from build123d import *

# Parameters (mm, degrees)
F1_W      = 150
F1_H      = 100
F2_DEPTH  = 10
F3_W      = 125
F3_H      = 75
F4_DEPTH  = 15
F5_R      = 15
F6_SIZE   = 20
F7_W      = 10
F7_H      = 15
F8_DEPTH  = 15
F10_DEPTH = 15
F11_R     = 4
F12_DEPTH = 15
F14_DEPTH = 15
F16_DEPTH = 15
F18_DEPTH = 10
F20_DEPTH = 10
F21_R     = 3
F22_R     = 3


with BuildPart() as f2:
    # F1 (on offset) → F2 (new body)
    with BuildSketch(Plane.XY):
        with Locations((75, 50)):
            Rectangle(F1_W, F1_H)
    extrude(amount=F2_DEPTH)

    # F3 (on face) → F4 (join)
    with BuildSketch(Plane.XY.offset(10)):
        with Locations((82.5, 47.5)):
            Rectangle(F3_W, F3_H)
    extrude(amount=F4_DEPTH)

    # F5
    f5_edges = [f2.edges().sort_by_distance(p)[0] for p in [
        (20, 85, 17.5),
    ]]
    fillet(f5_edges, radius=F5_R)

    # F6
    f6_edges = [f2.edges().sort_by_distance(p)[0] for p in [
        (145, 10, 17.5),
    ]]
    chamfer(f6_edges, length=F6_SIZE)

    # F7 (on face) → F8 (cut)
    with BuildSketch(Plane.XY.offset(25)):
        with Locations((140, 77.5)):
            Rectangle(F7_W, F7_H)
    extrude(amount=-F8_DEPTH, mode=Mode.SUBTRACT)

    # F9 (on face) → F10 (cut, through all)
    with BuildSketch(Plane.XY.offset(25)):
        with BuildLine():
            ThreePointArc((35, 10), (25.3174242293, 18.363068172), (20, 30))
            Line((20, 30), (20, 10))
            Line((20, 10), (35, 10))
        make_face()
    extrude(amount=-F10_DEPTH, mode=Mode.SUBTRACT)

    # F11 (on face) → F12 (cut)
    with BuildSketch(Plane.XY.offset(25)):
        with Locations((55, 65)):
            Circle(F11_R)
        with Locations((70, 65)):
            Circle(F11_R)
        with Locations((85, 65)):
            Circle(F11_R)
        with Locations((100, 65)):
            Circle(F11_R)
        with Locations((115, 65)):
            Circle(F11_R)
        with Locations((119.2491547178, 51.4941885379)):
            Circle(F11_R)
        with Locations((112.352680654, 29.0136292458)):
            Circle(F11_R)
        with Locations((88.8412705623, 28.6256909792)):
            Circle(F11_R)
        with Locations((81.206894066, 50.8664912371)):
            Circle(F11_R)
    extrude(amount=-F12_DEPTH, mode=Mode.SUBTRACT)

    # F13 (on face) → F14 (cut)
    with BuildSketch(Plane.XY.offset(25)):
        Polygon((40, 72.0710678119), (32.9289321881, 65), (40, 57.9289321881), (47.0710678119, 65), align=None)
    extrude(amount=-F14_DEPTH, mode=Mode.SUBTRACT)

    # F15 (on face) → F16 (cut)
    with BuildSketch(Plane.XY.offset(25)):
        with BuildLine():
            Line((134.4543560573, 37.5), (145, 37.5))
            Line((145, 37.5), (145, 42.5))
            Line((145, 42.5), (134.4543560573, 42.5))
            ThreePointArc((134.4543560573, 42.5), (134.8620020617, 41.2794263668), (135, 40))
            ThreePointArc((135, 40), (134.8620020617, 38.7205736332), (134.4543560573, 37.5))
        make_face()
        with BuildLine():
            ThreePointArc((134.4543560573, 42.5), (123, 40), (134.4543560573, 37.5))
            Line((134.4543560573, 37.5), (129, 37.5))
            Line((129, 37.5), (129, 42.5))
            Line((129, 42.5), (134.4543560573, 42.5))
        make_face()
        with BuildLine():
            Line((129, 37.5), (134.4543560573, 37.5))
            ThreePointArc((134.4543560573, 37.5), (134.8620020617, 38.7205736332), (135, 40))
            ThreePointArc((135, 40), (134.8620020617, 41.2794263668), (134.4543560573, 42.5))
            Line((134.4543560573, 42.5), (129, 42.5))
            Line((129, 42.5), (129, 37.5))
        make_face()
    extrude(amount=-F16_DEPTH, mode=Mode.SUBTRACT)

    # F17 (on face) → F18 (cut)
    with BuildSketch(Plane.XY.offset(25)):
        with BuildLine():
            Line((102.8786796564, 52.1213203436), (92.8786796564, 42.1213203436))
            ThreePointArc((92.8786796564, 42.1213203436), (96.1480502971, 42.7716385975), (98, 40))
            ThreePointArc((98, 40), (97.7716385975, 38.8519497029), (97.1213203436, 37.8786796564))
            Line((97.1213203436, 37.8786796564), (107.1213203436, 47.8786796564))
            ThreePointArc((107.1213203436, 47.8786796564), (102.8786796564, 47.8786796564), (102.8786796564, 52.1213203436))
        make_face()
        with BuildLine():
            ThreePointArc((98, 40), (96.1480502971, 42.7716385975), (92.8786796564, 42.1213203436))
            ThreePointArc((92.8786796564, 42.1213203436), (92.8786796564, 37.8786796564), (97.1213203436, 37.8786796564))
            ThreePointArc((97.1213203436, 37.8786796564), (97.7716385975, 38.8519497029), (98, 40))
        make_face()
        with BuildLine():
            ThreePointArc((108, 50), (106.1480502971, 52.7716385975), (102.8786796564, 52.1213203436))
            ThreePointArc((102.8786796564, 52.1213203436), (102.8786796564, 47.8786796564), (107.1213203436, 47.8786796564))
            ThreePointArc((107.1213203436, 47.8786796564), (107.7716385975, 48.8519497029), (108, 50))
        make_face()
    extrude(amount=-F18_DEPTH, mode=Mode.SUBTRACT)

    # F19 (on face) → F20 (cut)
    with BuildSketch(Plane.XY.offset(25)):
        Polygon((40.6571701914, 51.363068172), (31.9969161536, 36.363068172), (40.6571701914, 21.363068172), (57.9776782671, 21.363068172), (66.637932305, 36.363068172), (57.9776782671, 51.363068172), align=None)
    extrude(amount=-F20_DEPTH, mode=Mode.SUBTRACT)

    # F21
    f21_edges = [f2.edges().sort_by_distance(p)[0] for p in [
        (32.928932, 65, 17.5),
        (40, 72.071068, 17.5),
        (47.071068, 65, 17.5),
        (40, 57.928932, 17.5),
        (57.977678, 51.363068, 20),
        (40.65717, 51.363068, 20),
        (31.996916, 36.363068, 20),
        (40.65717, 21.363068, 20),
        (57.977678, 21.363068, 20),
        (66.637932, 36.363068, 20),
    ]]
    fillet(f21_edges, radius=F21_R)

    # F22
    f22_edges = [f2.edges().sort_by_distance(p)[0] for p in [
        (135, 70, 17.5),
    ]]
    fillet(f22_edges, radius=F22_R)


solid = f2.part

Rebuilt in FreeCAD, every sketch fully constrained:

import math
import FreeCAD as App
import Part
import Sketcher
from FreeCAD import Vector
Q = App.Units.Quantity


def edges_at(feature, points):
    """Names of the edges that pass closest to the given points."""
    edges = feature.Shape.Edges
    near = lambda p: min(range(len(edges)), key=lambda i: edges[i].distToShape(Part.Vertex(*p))[0])
    return sorted({f"Edge{near(p) + 1}" for p in points})

doc = App.newDocument("Part")
params = doc.addObject("Spreadsheet::Sheet", "Params")
for row, (alias, value) in enumerate([
    ("sketch1_width", "150 mm"),
    ("sketch1_height", "100 mm"),
    ("pad1_length", "10 mm"),
    ("sketch2_width", "125 mm"),
    ("sketch2_height", "75 mm"),
    ("pad2_length", "15 mm"),
    ("fillet_radius", "15 mm"),
    ("chamfer_size", "20 mm"),
    ("sketch3_width", "10 mm"),
    ("sketch3_height", "15 mm"),
    ("pocket1_length", "15 mm"),
    ("sketch4_radius", "30 mm"),
    ("sketch4_width", "15 mm"),
    ("sketch4_height", "20 mm"),
    ("pocket2_length", "15 mm"),
    ("sketch5_diameter", "8 mm"),
    ("pocket3_length", "15 mm"),
    ("sketch6_length", "10 mm"),
    ("pocket4_length", "15 mm"),
    ("sketch7_radius", "6 mm"),
    ("sketch7_height", "5 mm"),
    ("pocket5_length", "15 mm"),
    ("sketch8_radius", "3 mm"),
    ("pocket6_length", "10 mm"),
    ("pocket7_length", "10 mm"),
    ("fillet2_radius", "3 mm"),
    ("fillet3_radius", "3 mm"),
], start=1):
    params.set(f"A{row}", alias)
    params.set(f"B{row}", "=" + value)
    params.setAlias(f"B{row}", alias)

body = doc.addObject("PartDesign::Body", "Body")

# Sketch on XY plane
sketch1 = body.newObject("Sketcher::SketchObject", "Sketch")
sketch1.AttachmentSupport = (doc.getObject("XY_Plane"), [""])
sketch1.MapMode = "FlatFace"
sketch1.addGeometry(Part.LineSegment(Vector(0, 100, 0), Vector(0, 0, 0)), False)
sketch1.addGeometry(Part.LineSegment(Vector(0, 0, 0), Vector(150, 0, 0)), False)
sketch1.addGeometry(Part.LineSegment(Vector(150, 0, 0), Vector(150, 100, 0)), False)
sketch1.addGeometry(Part.LineSegment(Vector(150, 100, 0), Vector(0, 100, 0)), False)
sketch1.addConstraint(Sketcher.Constraint("Coincident", 0, 2, 1, 1))
sketch1.addConstraint(Sketcher.Constraint("Coincident", 1, 2, 2, 1))
sketch1.addConstraint(Sketcher.Constraint("Coincident", 2, 2, 3, 1))
sketch1.addConstraint(Sketcher.Constraint("Coincident", 3, 2, 0, 1))
sketch1.addConstraint(Sketcher.Constraint("Vertical", 0))
sketch1.addConstraint(Sketcher.Constraint("Horizontal", 1))
sketch1.addConstraint(Sketcher.Constraint("Vertical", 2))
sketch1.addConstraint(Sketcher.Constraint("Horizontal", 3))
sketch1.addConstraint(Sketcher.Constraint("Coincident", 0, 2, -1, 1))
sketch1.addConstraint(Sketcher.Constraint("DistanceX", 1, 1, 1, 2, 150.0))
sketch1.addConstraint(Sketcher.Constraint("DistanceY", 0, 2, 0, 1, 100.0))
sketch1.setExpression("Constraints[9]", "Params.sketch1_width")
sketch1.setExpression("Constraints[10]", "Params.sketch1_height")
pad1 = body.newObject("PartDesign::Pad", "Pad")
pad1.Profile = sketch1
pad1.setExpression("Length", "Params.pad1_length")

# Sketch on XY plane
sketch2 = body.newObject("Sketcher::SketchObject", "Sketch001")
sketch2.AttachmentSupport = (doc.getObject("XY_Plane"), [""])
sketch2.MapMode = "FlatFace"
sketch2.AttachmentOffset = App.Placement(Vector(0, 0, 10), App.Rotation())
sketch2.addGeometry(Part.LineSegment(Vector(20, 85, 0), Vector(20, 10, 0)), False)
sketch2.addGeometry(Part.LineSegment(Vector(20, 10, 0), Vector(145, 10, 0)), False)
sketch2.addGeometry(Part.LineSegment(Vector(145, 10, 0), Vector(145, 85, 0)), False)
sketch2.addGeometry(Part.LineSegment(Vector(145, 85, 0), Vector(20, 85, 0)), False)
sketch2.addConstraint(Sketcher.Constraint("Coincident", 0, 2, 1, 1))
sketch2.addConstraint(Sketcher.Constraint("Coincident", 1, 2, 2, 1))
sketch2.addConstraint(Sketcher.Constraint("Coincident", 2, 2, 3, 1))
sketch2.addConstraint(Sketcher.Constraint("Coincident", 3, 2, 0, 1))
sketch2.addConstraint(Sketcher.Constraint("Vertical", 0))
sketch2.addConstraint(Sketcher.Constraint("Horizontal", 1))
sketch2.addConstraint(Sketcher.Constraint("Vertical", 2))
sketch2.addConstraint(Sketcher.Constraint("Horizontal", 3))
sketch2.addConstraint(Sketcher.Constraint("DistanceX", 1, 1, 1, 2, 125.0))
sketch2.addConstraint(Sketcher.Constraint("DistanceY", 0, 2, 0, 1, 75.0))
sketch2.addConstraint(Sketcher.Constraint("DistanceX", -1, 1, 0, 2, 20.0))
sketch2.addConstraint(Sketcher.Constraint("DistanceY", -1, 1, 0, 2, 10.0))
sketch2.setExpression("Constraints[8]", "Params.sketch2_width")
sketch2.setExpression("Constraints[9]", "Params.sketch2_height")
pad2 = body.newObject("PartDesign::Pad", "Pad001")
pad2.Profile = sketch2
pad2.setExpression("Length", "Params.pad2_length")
doc.recompute()

fillet = body.newObject("PartDesign::Fillet", "Fillet")
fillet.Base = (pad2, edges_at(pad2, [(20, 85, 17.5)]))
fillet.setExpression("Radius", "Params.fillet_radius")
doc.recompute()

chamfer = body.newObject("PartDesign::Chamfer", "Chamfer")
chamfer.Base = (fillet, edges_at(fillet, [(145, 10, 17.5)]))
chamfer.setExpression("Size", "Params.chamfer_size")

# Sketch on XY plane
sketch3 = body.newObject("Sketcher::SketchObject", "Sketch002")
sketch3.AttachmentSupport = (doc.getObject("XY_Plane"), [""])
sketch3.MapMode = "FlatFace"
sketch3.AttachmentOffset = App.Placement(Vector(0, 0, 25), App.Rotation())
sketch3.addGeometry(Part.LineSegment(Vector(135, 85, 0), Vector(135, 70, 0)), False)
sketch3.addGeometry(Part.LineSegment(Vector(135, 70, 0), Vector(145, 70, 0)), False)
sketch3.addGeometry(Part.LineSegment(Vector(145, 70, 0), Vector(145, 85, 0)), False)
sketch3.addGeometry(Part.LineSegment(Vector(145, 85, 0), Vector(135, 85, 0)), False)
sketch3.addConstraint(Sketcher.Constraint("Coincident", 0, 2, 1, 1))
sketch3.addConstraint(Sketcher.Constraint("Coincident", 1, 2, 2, 1))
sketch3.addConstraint(Sketcher.Constraint("Coincident", 2, 2, 3, 1))
sketch3.addConstraint(Sketcher.Constraint("Coincident", 3, 2, 0, 1))
sketch3.addConstraint(Sketcher.Constraint("Vertical", 0))
sketch3.addConstraint(Sketcher.Constraint("Horizontal", 1))
sketch3.addConstraint(Sketcher.Constraint("Vertical", 2))
sketch3.addConstraint(Sketcher.Constraint("Horizontal", 3))
sketch3.addConstraint(Sketcher.Constraint("DistanceX", 1, 1, 1, 2, 10.0))
sketch3.addConstraint(Sketcher.Constraint("DistanceY", 0, 2, 0, 1, 15.0))
sketch3.addConstraint(Sketcher.Constraint("DistanceX", -1, 1, 0, 2, 135.0))
sketch3.addConstraint(Sketcher.Constraint("DistanceY", -1, 1, 0, 2, 70.0))
sketch3.setExpression("Constraints[8]", "Params.sketch3_width")
sketch3.setExpression("Constraints[9]", "Params.sketch3_height")
pocket1 = body.newObject("PartDesign::Pocket", "Pocket")
pocket1.Profile = sketch3
pocket1.setExpression("Length", "Params.pocket1_length")

# Sketch on XY plane
sketch4 = body.newObject("Sketcher::SketchObject", "Sketch003")
sketch4.AttachmentSupport = (doc.getObject("XY_Plane"), [""])
sketch4.MapMode = "FlatFace"
sketch4.AttachmentOffset = App.Placement(Vector(0, 0, 25), App.Rotation())
sketch4.addGeometry(Part.ArcOfCircle(Part.Circle(Vector(49.317424, 36.363068, 0), Vector(0, 0, 1), 30), math.radians(-167.754421), math.radians(-118.505784)), False)
sketch4.addGeometry(Part.LineSegment(Vector(20, 30, 0), Vector(20, 10, 0)), False)
sketch4.addGeometry(Part.LineSegment(Vector(20, 10, 0), Vector(35, 10, 0)), False)
sketch4.addConstraint(Sketcher.Constraint("Coincident", 0, 1, 1, 1))
sketch4.addConstraint(Sketcher.Constraint("Coincident", 1, 2, 2, 1))
sketch4.addConstraint(Sketcher.Constraint("Coincident", 2, 2, 0, 2))
sketch4.addConstraint(Sketcher.Constraint("Vertical", 1))
sketch4.addConstraint(Sketcher.Constraint("Horizontal", 2))
sketch4.addConstraint(Sketcher.Constraint("Radius", 0, 30.0))
sketch4.addConstraint(Sketcher.Constraint("DistanceX", 2, 1, 2, 2, 15.0))
sketch4.addConstraint(Sketcher.Constraint("DistanceY", 1, 2, 1, 1, 20.0))
sketch4.addConstraint(Sketcher.Constraint("DistanceX", -1, 1, 0, 1, 20.0))
sketch4.addConstraint(Sketcher.Constraint("DistanceY", -1, 1, 0, 1, 30.0))
sketch4.setExpression("Constraints[5]", "Params.sketch4_radius")
sketch4.setExpression("Constraints[6]", "Params.sketch4_width")
sketch4.setExpression("Constraints[7]", "Params.sketch4_height")
pocket2 = body.newObject("PartDesign::Pocket", "Pocket001")
pocket2.Profile = sketch4
pocket2.setExpression("Length", "Params.pocket2_length")

# Sketch on XY plane
sketch5 = body.newObject("Sketcher::SketchObject", "Sketch004")
sketch5.AttachmentSupport = (doc.getObject("XY_Plane"), [""])
sketch5.MapMode = "FlatFace"
sketch5.AttachmentOffset = App.Placement(Vector(0, 0, 25), App.Rotation())
sketch5.addGeometry(Part.Circle(Vector(55, 65, 0), Vector(0, 0, 1), 4), False)
sketch5.addGeometry(Part.Circle(Vector(70, 65, 0), Vector(0, 0, 1), 4), False)
sketch5.addGeometry(Part.Circle(Vector(85, 65, 0), Vector(0, 0, 1), 4), False)
sketch5.addGeometry(Part.Circle(Vector(100, 65, 0), Vector(0, 0, 1), 4), False)
sketch5.addGeometry(Part.Circle(Vector(115, 65, 0), Vector(0, 0, 1), 4), False)
sketch5.addGeometry(Part.Circle(Vector(119.249155, 51.494189, 0), Vector(0, 0, 1), 4), False)
sketch5.addGeometry(Part.Circle(Vector(112.352681, 29.013629, 0), Vector(0, 0, 1), 4), False)
sketch5.addGeometry(Part.Circle(Vector(88.841271, 28.625691, 0), Vector(0, 0, 1), 4), False)
sketch5.addGeometry(Part.Circle(Vector(81.206894, 50.866491, 0), Vector(0, 0, 1), 4), False)
sketch5.addConstraint(Sketcher.Constraint("Equal", 0, 1))
sketch5.addConstraint(Sketcher.Constraint("Equal", 1, 2))
sketch5.addConstraint(Sketcher.Constraint("Equal", 2, 3))
sketch5.addConstraint(Sketcher.Constraint("Equal", 3, 4))
sketch5.addConstraint(Sketcher.Constraint("Equal", 4, 5))
sketch5.addConstraint(Sketcher.Constraint("Equal", 5, 6))
sketch5.addConstraint(Sketcher.Constraint("Equal", 6, 7))
sketch5.addConstraint(Sketcher.Constraint("Equal", 7, 8))
sketch5.addConstraint(Sketcher.Constraint("Horizontal", 0, 3, 1, 3))
sketch5.addConstraint(Sketcher.Constraint("Horizontal", 1, 3, 2, 3))
sketch5.addConstraint(Sketcher.Constraint("Horizontal", 2, 3, 3, 3))
sketch5.addConstraint(Sketcher.Constraint("Horizontal", 3, 3, 4, 3))
sketch5.addConstraint(Sketcher.Constraint("Diameter", 0, 8.0))
sketch5.addConstraint(Sketcher.Constraint("DistanceX", -1, 1, 0, 3, 55.0))
sketch5.addConstraint(Sketcher.Constraint("DistanceY", -1, 1, 0, 3, 65.0))
sketch5.addConstraint(Sketcher.Constraint("DistanceX", -1, 1, 1, 3, 70.0))
sketch5.addConstraint(Sketcher.Constraint("DistanceX", -1, 1, 2, 3, 85.0))
sketch5.addConstraint(Sketcher.Constraint("DistanceX", -1, 1, 3, 3, 100.0))
sketch5.addConstraint(Sketcher.Constraint("DistanceX", -1, 1, 4, 3, 115.0))
sketch5.addConstraint(Sketcher.Constraint("DistanceY", 7, 3, 8, 3, 22.2408))
sketch5.addConstraint(Sketcher.Constraint("DistanceY", -1, 1, 5, 3, 51.494189))
sketch5.addConstraint(Sketcher.Constraint("DistanceX", -1, 1, 6, 3, 112.352681))
sketch5.addConstraint(Sketcher.Constraint("DistanceY", -1, 1, 6, 3, 29.013629))
sketch5.addConstraint(Sketcher.Constraint("DistanceX", -1, 1, 7, 3, 88.841271))
sketch5.addConstraint(Sketcher.Constraint("DistanceY", -1, 1, 7, 3, 28.625691))
sketch5.addConstraint(Sketcher.Constraint("DistanceX", -1, 1, 5, 3, 119.249155))
sketch5.addConstraint(Sketcher.Constraint("DistanceX", -1, 1, 8, 3, 81.206894))
sketch5.setExpression("Constraints[12]", "Params.sketch5_diameter")
pocket3 = body.newObject("PartDesign::Pocket", "Pocket002")
pocket3.Profile = sketch5
pocket3.setExpression("Length", "Params.pocket3_length")

# Sketch on XY plane
sketch6 = body.newObject("Sketcher::SketchObject", "Sketch005")
sketch6.AttachmentSupport = (doc.getObject("XY_Plane"), [""])
sketch6.MapMode = "FlatFace"
sketch6.AttachmentOffset = App.Placement(Vector(0, 0, 25), App.Rotation())
sketch6.addGeometry(Part.LineSegment(Vector(40, 72.071068, 0), Vector(32.928932, 65, 0)), False)
sketch6.addGeometry(Part.LineSegment(Vector(32.928932, 65, 0), Vector(40, 57.928932, 0)), False)
sketch6.addGeometry(Part.LineSegment(Vector(40, 57.928932, 0), Vector(47.071068, 65, 0)), False)
sketch6.addGeometry(Part.LineSegment(Vector(47.071068, 65, 0), Vector(40, 72.071068, 0)), False)
sketch6.addConstraint(Sketcher.Constraint("Coincident", 0, 2, 1, 1))
sketch6.addConstraint(Sketcher.Constraint("Coincident", 1, 2, 2, 1))
sketch6.addConstraint(Sketcher.Constraint("Coincident", 2, 2, 3, 1))
sketch6.addConstraint(Sketcher.Constraint("Coincident", 3, 2, 0, 1))
sketch6.addConstraint(Sketcher.Constraint("Perpendicular", 0, 1))
sketch6.addConstraint(Sketcher.Constraint("Perpendicular", 1, 2))
sketch6.addConstraint(Sketcher.Constraint("Perpendicular", 2, 3))
sketch6.addConstraint(Sketcher.Constraint("Horizontal", 0, 2, 2, 2))
sketch6.addConstraint(Sketcher.Constraint("Vertical", 1, 2, 3, 2))
sketch6.addConstraint(Sketcher.Constraint("Distance", 0, 10.0))
sketch6.addConstraint(Sketcher.Constraint("DistanceY", -1, 1, 0, 2, 65.0))
sketch6.addConstraint(Sketcher.Constraint("DistanceX", -1, 1, 1, 2, 40.0))
sketch6.setExpression("Constraints[9]", "Params.sketch6_length")
pocket4 = body.newObject("PartDesign::Pocket", "Pocket003")
pocket4.Profile = sketch6
pocket4.setExpression("Length", "Params.pocket4_length")

# Sketch on XY plane
sketch7 = body.newObject("Sketcher::SketchObject", "Sketch006")
sketch7.AttachmentSupport = (doc.getObject("XY_Plane"), [""])
sketch7.MapMode = "FlatFace"
sketch7.AttachmentOffset = App.Placement(Vector(0, 0, 25), App.Rotation())
sketch7.addGeometry(Part.LineSegment(Vector(134.454356, 37.5, 0), Vector(145, 37.5, 0)), False)
sketch7.addGeometry(Part.LineSegment(Vector(145, 37.5, 0), Vector(145, 42.5, 0)), False)
sketch7.addGeometry(Part.LineSegment(Vector(145, 42.5, 0), Vector(134.454356, 42.5, 0)), False)
sketch7.addGeometry(Part.ArcOfCircle(Part.Circle(Vector(129, 40, 0), Vector(0, 0, 1), 6), math.radians(24.624318), math.radians(335.375682)), False)
sketch7.addConstraint(Sketcher.Constraint("Coincident", 0, 2, 1, 1))
sketch7.addConstraint(Sketcher.Constraint("Coincident", 1, 2, 2, 1))
sketch7.addConstraint(Sketcher.Constraint("Coincident", 2, 2, 3, 1))
sketch7.addConstraint(Sketcher.Constraint("Coincident", 3, 2, 0, 1))
sketch7.addConstraint(Sketcher.Constraint("Horizontal", 0))
sketch7.addConstraint(Sketcher.Constraint("Vertical", 1))
sketch7.addConstraint(Sketcher.Constraint("Horizontal", 2))
sketch7.addConstraint(Sketcher.Constraint("Vertical", 2, 2, 3, 2))
sketch7.addConstraint(Sketcher.Constraint("Radius", 3, 6.0))
sketch7.addConstraint(Sketcher.Constraint("DistanceY", 1, 1, 1, 2, 5.0))
sketch7.addConstraint(Sketcher.Constraint("DistanceX", -1, 1, 3, 3, 129.0))
sketch7.addConstraint(Sketcher.Constraint("DistanceY", -1, 1, 3, 3, 40.0))
sketch7.addConstraint(Sketcher.Constraint("DistanceX", -1, 1, 0, 2, 145.0))
sketch7.setExpression("Constraints[8]", "Params.sketch7_radius")
sketch7.setExpression("Constraints[9]", "Params.sketch7_height")
pocket5 = body.newObject("PartDesign::Pocket", "Pocket004")
pocket5.Profile = sketch7
pocket5.setExpression("Length", "Params.pocket5_length")

# Sketch on XY plane
sketch8 = body.newObject("Sketcher::SketchObject", "Sketch007")
sketch8.AttachmentSupport = (doc.getObject("XY_Plane"), [""])
sketch8.MapMode = "FlatFace"
sketch8.AttachmentOffset = App.Placement(Vector(0, 0, 25), App.Rotation())
sketch8.addGeometry(Part.LineSegment(Vector(102.87868, 52.12132, 0), Vector(92.87868, 42.12132, 0)), False)
sketch8.addGeometry(Part.ArcOfCircle(Part.Circle(Vector(95, 40, 0), Vector(0, 0, 1), 3), math.radians(135), math.radians(315)), False)
sketch8.addGeometry(Part.LineSegment(Vector(97.12132, 37.87868, 0), Vector(107.12132, 47.87868, 0)), False)
sketch8.addGeometry(Part.ArcOfCircle(Part.Circle(Vector(105, 50, 0), Vector(0, 0, 1), 3), math.radians(-45), math.radians(0)), False)
sketch8.addGeometry(Part.ArcOfCircle(Part.Circle(Vector(105, 50, 0), Vector(0, 0, 1), 3), math.radians(0), math.radians(135)), False)
sketch8.addConstraint(Sketcher.Constraint("Tangent", 0, 2, 1, 1))
sketch8.addConstraint(Sketcher.Constraint("Tangent", 1, 2, 2, 1))
sketch8.addConstraint(Sketcher.Constraint("Tangent", 2, 2, 3, 1))
sketch8.addConstraint(Sketcher.Constraint("Tangent", 3, 2, 4, 1))
sketch8.addConstraint(Sketcher.Constraint("Tangent", 4, 2, 0, 1))
sketch8.addConstraint(Sketcher.Constraint("Equal", 1, 3))
sketch8.addConstraint(Sketcher.Constraint("Equal", 3, 4))
sketch8.addConstraint(Sketcher.Constraint("Horizontal", 4, 3, 3, 2))
sketch8.addConstraint(Sketcher.Constraint("Radius", 1, 3.0))
sketch8.addConstraint(Sketcher.Constraint("Angle", 0, Q("-135 deg")))
sketch8.addConstraint(Sketcher.Constraint("DistanceX", -1, 1, 1, 3, 95.0))
sketch8.addConstraint(Sketcher.Constraint("DistanceY", -1, 1, 1, 3, 40.0))
sketch8.addConstraint(Sketcher.Constraint("DistanceX", -1, 1, 3, 3, 105.0))
sketch8.setExpression("Constraints[8]", "Params.sketch8_radius")
pocket6 = body.newObject("PartDesign::Pocket", "Pocket005")
pocket6.Profile = sketch8
pocket6.setExpression("Length", "Params.pocket6_length")

# Sketch on XY plane
sketch9 = body.newObject("Sketcher::SketchObject", "Sketch008")
sketch9.AttachmentSupport = (doc.getObject("XY_Plane"), [""])
sketch9.MapMode = "FlatFace"
sketch9.AttachmentOffset = App.Placement(Vector(0, 0, 25), App.Rotation())
sketch9.addGeometry(Part.LineSegment(Vector(40.65717, 51.363068, 0), Vector(31.996916, 36.363068, 0)), False)
sketch9.addGeometry(Part.LineSegment(Vector(31.996916, 36.363068, 0), Vector(40.65717, 21.363068, 0)), False)
sketch9.addGeometry(Part.LineSegment(Vector(40.65717, 21.363068, 0), Vector(57.977678, 21.363068, 0)), False)
sketch9.addGeometry(Part.LineSegment(Vector(57.977678, 21.363068, 0), Vector(66.637932, 36.363068, 0)), False)
sketch9.addGeometry(Part.LineSegment(Vector(66.637932, 36.363068, 0), Vector(57.977678, 51.363068, 0)), False)
sketch9.addGeometry(Part.LineSegment(Vector(57.977678, 51.363068, 0), Vector(40.65717, 51.363068, 0)), False)
sketch9.addConstraint(Sketcher.Constraint("Coincident", 0, 2, 1, 1))
sketch9.addConstraint(Sketcher.Constraint("Coincident", 1, 2, 2, 1))
sketch9.addConstraint(Sketcher.Constraint("Coincident", 2, 2, 3, 1))
sketch9.addConstraint(Sketcher.Constraint("Coincident", 3, 2, 4, 1))
sketch9.addConstraint(Sketcher.Constraint("Coincident", 4, 2, 5, 1))
sketch9.addConstraint(Sketcher.Constraint("Coincident", 5, 2, 0, 1))
sketch9.addConstraint(Sketcher.Constraint("Horizontal", 2))
sketch9.addConstraint(Sketcher.Constraint("Horizontal", 5))
sketch9.addConstraint(Sketcher.Constraint("Parallel", 0, 3))
sketch9.addConstraint(Sketcher.Constraint("Parallel", 1, 4))
sketch9.addConstraint(Sketcher.Constraint("Horizontal", 0, 2, 3, 2))
sketch9.addConstraint(Sketcher.Constraint("Vertical", 2, 2, 4, 2))
sketch9.addConstraint(Sketcher.Constraint("Vertical", 1, 2, 5, 2))
sketch9.addConstraint(Sketcher.Constraint("Angle", 0, Q("-120 deg")))
sketch9.addConstraint(Sketcher.Constraint("DistanceY", 1, 2, 0, 2, 15.0))
sketch9.addConstraint(Sketcher.Constraint("DistanceX", 2, 1, 2, 2, 17.320508))
sketch9.addConstraint(Sketcher.Constraint("DistanceY", -1, 1, 0, 2, 36.363068))
sketch9.addConstraint(Sketcher.Constraint("DistanceX", -1, 1, 1, 2, 40.65717))
pocket7 = body.newObject("PartDesign::Pocket", "Pocket006")
pocket7.Profile = sketch9
pocket7.setExpression("Length", "Params.pocket7_length")
doc.recompute()

fillet2 = body.newObject("PartDesign::Fillet", "Fillet001")
fillet2.Base = (pocket7, edges_at(pocket7, [
    (32.929, 65, 17.5),
    (40, 72.071, 17.5),
    (47.071, 65, 17.5),
    (40, 57.929, 17.5),
    (57.978, 51.363, 20),
    (40.657, 51.363, 20),
    (31.997, 36.363, 20),
    (40.657, 21.363, 20),
    (57.978, 21.363, 20),
    (66.638, 36.363, 20),
]))
fillet2.setExpression("Radius", "Params.fillet2_radius")
doc.recompute()

fillet3 = body.newObject("PartDesign::Fillet", "Fillet002")
fillet3.Base = (fillet2, edges_at(fillet2, [(135, 70, 17.5)]))
fillet3.setExpression("Radius", "Params.fillet3_radius")

doc.recompute()
